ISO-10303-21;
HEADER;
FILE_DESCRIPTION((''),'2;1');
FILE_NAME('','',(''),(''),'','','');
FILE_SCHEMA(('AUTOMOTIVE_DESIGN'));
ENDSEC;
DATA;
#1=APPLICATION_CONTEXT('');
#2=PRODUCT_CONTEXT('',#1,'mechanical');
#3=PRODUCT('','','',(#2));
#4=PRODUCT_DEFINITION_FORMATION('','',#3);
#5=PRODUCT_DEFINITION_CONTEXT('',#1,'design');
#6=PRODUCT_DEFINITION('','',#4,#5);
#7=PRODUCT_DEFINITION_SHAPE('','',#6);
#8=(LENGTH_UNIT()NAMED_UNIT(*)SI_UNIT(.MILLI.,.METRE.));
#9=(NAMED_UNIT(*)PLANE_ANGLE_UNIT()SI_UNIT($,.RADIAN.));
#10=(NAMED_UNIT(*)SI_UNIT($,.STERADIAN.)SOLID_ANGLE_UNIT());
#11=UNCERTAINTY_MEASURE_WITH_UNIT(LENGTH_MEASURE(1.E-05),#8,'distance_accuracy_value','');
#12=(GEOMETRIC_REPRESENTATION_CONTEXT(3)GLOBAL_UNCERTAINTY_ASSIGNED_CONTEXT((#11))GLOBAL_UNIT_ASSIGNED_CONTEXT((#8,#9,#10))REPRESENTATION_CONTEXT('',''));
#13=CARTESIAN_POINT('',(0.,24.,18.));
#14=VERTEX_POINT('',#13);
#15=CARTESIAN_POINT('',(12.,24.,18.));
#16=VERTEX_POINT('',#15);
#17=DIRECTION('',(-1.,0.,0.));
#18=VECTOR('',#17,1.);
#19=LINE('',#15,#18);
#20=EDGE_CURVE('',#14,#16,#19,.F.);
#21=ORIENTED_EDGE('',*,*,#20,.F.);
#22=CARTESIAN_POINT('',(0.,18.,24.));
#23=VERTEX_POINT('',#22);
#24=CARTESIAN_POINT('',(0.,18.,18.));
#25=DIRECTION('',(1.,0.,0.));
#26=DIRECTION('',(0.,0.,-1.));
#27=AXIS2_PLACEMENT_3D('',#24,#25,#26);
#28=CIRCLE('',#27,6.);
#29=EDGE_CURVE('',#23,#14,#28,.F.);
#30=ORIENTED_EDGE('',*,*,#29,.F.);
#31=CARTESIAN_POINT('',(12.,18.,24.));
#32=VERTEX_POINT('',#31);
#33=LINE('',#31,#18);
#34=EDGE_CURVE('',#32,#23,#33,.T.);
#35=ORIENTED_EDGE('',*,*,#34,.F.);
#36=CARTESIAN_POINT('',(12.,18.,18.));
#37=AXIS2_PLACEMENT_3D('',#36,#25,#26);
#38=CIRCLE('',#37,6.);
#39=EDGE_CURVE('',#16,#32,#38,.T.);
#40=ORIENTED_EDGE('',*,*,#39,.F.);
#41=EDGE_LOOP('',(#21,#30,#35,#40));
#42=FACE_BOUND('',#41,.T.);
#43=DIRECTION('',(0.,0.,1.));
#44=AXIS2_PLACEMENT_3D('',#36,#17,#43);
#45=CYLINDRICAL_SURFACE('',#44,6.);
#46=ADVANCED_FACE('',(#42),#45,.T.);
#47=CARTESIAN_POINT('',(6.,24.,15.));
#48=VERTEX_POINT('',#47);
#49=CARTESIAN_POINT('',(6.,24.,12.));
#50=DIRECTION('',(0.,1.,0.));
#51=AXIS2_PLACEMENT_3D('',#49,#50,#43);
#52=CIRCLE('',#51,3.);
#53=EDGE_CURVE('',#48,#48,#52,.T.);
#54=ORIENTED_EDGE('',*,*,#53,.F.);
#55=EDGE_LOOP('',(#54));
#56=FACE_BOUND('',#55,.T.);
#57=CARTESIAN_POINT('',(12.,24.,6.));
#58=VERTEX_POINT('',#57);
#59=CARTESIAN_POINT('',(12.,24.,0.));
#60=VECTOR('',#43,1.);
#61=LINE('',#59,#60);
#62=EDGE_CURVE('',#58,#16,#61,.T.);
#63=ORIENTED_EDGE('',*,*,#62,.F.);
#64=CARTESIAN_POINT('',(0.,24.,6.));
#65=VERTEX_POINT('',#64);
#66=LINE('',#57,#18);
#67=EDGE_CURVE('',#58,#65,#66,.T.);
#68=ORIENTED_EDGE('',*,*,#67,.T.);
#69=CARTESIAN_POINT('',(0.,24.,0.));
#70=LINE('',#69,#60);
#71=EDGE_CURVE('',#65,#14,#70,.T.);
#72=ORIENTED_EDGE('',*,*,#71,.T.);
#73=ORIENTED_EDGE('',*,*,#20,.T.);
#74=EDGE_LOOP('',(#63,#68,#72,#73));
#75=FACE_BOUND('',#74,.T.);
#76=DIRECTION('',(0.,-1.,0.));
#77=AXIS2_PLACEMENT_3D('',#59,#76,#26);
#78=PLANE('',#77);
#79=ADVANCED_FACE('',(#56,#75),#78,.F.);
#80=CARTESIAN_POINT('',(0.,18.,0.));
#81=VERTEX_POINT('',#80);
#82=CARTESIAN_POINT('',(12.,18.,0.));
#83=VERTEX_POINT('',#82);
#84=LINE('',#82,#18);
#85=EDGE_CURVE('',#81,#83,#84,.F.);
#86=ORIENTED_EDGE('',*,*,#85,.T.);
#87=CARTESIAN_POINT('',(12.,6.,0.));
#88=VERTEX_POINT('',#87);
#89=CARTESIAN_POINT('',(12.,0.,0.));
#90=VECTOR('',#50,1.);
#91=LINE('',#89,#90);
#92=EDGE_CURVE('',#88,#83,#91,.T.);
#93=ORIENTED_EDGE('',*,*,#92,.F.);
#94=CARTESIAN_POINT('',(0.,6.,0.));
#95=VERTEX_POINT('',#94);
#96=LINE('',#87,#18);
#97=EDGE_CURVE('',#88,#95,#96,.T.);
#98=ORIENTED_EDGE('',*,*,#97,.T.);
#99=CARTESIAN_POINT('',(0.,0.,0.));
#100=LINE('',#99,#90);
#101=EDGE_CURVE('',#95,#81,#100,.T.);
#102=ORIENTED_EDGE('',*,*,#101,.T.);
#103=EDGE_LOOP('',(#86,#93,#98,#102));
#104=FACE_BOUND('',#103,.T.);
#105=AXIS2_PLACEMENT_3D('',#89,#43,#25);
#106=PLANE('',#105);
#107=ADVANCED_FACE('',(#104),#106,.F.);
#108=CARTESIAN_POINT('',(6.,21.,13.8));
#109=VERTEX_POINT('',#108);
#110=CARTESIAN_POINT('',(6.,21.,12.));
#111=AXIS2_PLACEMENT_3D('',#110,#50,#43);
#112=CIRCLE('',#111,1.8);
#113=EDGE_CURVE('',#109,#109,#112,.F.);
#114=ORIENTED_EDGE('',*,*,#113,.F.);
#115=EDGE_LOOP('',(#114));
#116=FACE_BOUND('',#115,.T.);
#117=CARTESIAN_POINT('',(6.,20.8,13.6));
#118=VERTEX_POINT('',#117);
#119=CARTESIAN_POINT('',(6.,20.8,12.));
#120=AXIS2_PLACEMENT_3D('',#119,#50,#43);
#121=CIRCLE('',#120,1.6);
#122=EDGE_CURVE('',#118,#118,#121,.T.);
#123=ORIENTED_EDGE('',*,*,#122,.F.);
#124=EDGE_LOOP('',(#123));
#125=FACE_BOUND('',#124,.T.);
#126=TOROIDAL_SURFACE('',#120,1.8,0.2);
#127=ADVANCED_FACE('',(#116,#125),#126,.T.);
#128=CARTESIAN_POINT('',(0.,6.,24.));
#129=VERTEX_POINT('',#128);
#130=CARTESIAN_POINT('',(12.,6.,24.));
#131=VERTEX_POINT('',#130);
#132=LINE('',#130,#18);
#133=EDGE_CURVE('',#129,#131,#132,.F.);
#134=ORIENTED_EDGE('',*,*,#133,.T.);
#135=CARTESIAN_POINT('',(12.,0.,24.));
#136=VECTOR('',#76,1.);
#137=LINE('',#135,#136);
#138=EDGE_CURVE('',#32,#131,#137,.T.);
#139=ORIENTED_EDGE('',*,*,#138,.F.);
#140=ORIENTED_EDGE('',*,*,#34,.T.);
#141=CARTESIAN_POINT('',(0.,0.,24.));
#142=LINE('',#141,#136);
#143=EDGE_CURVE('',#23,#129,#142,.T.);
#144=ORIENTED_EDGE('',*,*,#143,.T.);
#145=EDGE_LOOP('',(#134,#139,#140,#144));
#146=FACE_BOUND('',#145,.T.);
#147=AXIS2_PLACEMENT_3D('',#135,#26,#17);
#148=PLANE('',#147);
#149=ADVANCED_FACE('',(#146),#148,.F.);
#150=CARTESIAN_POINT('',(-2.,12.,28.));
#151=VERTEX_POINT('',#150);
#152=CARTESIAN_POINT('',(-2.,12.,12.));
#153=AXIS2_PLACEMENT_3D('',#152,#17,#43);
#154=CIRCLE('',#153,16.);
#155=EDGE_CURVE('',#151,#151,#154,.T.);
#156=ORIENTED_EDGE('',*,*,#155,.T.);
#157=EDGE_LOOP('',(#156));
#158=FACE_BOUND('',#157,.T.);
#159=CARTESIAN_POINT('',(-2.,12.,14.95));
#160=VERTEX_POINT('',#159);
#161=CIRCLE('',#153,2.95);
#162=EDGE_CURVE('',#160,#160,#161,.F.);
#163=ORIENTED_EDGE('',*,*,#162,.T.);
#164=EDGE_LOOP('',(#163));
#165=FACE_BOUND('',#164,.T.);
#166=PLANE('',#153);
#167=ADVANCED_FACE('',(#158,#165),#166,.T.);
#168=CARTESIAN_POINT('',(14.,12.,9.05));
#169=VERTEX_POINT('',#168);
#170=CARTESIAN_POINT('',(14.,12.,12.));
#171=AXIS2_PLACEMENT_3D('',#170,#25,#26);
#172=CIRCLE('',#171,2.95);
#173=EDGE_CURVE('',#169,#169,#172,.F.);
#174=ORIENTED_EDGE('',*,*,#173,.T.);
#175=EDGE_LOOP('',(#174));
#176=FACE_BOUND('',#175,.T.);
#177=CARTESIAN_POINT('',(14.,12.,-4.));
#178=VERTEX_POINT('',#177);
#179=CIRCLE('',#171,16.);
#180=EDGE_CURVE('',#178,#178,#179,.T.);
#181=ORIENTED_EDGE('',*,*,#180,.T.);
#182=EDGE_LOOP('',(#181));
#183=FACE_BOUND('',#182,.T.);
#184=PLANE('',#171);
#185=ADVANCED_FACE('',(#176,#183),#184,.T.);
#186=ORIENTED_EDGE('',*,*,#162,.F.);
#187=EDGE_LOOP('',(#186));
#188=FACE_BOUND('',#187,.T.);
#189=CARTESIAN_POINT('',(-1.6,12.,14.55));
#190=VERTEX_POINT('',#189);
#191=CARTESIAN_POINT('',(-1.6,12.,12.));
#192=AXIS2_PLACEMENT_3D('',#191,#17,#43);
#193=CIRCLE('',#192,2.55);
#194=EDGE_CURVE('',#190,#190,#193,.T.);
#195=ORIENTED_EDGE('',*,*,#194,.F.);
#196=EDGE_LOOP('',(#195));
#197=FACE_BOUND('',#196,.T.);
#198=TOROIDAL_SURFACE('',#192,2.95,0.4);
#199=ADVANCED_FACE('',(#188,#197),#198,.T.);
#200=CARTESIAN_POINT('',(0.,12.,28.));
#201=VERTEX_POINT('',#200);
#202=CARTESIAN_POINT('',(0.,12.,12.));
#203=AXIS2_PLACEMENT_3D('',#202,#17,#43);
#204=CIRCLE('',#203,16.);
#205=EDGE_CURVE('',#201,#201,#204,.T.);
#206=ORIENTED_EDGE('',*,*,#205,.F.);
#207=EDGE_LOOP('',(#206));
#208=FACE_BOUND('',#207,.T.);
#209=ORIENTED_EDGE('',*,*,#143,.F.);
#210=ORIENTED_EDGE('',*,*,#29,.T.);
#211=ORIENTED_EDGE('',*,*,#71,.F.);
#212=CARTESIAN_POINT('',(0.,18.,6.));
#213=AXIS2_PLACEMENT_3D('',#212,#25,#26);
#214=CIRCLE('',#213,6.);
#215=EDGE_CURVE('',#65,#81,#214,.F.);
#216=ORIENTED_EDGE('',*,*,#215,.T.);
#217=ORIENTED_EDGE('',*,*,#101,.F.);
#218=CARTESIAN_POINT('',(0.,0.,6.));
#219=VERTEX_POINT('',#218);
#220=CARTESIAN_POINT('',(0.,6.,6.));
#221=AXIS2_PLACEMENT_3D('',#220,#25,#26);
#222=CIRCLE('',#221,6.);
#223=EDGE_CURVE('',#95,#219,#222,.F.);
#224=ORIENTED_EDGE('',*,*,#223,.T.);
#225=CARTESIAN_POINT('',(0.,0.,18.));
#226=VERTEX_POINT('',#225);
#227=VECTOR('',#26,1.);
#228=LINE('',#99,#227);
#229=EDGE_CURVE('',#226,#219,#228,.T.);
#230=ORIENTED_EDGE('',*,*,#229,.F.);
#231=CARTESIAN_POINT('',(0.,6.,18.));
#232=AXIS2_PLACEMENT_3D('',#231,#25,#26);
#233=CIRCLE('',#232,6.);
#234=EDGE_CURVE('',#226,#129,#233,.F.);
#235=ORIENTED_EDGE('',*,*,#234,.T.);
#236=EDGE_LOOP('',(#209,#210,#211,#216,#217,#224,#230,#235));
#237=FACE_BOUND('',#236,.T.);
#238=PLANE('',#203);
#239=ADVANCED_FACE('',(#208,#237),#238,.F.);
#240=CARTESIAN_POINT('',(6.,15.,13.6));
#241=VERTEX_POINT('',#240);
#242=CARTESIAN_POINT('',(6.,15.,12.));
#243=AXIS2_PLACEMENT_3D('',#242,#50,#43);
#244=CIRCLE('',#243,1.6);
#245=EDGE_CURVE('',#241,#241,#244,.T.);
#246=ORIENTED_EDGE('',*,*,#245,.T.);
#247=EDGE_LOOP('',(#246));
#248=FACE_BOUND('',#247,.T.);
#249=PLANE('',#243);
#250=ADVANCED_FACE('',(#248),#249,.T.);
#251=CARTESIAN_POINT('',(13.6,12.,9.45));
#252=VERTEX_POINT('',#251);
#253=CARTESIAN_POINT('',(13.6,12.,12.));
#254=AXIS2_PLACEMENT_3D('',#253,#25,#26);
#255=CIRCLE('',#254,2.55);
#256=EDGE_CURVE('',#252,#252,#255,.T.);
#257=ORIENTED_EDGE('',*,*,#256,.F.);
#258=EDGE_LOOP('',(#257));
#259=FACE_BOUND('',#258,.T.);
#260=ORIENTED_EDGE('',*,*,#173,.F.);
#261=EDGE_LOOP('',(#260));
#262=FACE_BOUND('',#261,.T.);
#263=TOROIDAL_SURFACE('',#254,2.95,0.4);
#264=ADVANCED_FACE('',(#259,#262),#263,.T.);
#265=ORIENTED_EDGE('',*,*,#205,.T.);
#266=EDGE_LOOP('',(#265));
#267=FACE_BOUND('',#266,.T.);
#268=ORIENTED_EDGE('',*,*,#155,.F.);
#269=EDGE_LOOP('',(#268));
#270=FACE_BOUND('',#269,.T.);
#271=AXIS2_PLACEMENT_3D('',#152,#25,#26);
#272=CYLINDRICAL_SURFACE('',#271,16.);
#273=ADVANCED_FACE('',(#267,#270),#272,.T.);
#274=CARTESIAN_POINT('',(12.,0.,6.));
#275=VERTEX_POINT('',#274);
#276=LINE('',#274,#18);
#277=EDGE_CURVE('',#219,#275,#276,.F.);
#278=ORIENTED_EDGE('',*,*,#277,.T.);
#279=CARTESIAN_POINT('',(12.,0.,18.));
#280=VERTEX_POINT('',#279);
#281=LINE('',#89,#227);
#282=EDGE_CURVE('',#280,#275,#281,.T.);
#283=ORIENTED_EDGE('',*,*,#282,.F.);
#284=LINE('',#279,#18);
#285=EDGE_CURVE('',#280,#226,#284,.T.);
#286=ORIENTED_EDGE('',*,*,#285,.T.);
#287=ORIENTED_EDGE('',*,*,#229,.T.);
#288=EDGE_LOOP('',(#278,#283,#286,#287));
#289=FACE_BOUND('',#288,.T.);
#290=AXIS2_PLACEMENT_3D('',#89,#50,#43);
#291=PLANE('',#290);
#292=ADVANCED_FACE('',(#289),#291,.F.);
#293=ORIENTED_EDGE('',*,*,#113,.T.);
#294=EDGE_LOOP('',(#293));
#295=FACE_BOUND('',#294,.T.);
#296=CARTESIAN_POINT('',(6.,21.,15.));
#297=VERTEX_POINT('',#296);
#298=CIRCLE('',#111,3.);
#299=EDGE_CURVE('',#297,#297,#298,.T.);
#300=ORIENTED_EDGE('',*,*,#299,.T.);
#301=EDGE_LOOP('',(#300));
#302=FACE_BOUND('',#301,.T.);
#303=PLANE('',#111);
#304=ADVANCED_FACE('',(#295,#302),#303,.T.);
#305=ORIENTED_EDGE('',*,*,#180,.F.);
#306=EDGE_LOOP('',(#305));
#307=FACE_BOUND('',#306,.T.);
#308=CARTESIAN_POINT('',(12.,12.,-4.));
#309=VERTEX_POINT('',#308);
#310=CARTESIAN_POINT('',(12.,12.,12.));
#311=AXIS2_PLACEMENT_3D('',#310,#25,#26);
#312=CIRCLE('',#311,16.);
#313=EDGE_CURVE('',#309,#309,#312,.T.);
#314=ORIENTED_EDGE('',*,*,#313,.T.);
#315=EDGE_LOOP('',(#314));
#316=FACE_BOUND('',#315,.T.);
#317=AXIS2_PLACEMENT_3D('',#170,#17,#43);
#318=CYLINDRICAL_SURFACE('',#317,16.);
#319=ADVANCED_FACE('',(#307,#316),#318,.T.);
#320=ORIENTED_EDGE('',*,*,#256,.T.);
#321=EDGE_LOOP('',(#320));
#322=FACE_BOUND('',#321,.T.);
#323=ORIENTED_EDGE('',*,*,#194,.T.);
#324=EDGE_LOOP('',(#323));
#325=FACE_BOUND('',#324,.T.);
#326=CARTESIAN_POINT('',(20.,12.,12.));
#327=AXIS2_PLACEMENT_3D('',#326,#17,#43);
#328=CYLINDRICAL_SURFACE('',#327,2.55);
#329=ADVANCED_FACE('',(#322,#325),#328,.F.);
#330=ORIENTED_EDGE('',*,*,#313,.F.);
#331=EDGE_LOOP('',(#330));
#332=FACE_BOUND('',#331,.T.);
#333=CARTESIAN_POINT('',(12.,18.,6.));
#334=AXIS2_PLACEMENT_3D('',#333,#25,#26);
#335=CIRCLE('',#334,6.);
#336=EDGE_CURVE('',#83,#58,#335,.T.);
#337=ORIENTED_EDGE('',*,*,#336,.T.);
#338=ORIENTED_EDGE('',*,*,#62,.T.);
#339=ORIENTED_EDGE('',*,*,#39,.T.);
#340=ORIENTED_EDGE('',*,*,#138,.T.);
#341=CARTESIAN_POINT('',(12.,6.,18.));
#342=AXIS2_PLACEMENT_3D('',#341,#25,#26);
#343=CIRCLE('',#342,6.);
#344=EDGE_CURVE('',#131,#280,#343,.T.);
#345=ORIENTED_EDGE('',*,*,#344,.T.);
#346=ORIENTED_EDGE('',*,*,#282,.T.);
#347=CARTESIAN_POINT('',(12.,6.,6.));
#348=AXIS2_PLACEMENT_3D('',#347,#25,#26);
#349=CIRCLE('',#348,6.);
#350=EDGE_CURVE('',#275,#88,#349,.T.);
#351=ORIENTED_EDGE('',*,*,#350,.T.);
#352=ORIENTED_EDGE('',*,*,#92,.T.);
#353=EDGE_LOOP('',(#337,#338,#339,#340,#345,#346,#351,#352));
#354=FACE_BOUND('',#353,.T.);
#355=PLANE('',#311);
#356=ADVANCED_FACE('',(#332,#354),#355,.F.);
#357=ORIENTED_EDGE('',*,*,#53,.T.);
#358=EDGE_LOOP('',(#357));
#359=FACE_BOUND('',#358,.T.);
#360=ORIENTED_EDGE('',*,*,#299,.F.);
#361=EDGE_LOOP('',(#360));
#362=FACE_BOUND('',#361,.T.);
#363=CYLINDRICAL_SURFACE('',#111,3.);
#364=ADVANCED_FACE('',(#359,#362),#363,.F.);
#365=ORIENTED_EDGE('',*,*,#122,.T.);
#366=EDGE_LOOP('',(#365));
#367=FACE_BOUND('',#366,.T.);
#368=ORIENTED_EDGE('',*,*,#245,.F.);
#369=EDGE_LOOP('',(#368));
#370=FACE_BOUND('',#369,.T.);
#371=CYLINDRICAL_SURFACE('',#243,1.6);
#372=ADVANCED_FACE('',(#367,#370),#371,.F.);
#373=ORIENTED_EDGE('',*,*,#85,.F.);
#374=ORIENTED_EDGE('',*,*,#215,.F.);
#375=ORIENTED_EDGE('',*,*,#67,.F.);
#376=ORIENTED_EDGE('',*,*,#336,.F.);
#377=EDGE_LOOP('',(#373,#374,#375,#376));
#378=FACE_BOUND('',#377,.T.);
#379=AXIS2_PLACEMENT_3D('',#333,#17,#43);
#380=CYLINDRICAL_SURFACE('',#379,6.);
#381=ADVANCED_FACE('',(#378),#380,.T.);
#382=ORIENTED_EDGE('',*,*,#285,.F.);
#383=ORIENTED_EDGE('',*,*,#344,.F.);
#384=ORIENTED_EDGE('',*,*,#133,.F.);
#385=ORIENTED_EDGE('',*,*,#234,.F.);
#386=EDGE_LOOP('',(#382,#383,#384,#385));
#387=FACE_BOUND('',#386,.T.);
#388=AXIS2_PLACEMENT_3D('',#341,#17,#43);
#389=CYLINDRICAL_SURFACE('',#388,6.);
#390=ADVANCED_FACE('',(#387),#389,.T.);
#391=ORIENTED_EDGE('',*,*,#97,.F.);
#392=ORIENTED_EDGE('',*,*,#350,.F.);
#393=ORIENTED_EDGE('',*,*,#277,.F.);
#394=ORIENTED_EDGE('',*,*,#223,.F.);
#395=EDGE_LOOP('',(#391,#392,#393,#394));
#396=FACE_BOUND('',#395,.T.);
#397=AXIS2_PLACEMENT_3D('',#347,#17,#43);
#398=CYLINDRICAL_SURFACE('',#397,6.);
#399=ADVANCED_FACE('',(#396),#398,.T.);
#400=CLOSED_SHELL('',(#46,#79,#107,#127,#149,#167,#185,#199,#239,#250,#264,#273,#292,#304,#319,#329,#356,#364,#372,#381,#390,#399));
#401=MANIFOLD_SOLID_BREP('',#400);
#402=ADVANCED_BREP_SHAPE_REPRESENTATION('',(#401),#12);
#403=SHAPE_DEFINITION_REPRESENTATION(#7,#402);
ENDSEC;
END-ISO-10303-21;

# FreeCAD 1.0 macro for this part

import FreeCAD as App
import Part
import Sketcher
Q = App.Units.Quantity


def edges_at(feature, points):
    """Names of the edges that pass closest to the given points."""
    edges = feature.Shape.Edges
    near = lambda p: min(range(len(edges)), key=lambda i: edges[i].distToShape(Part.Vertex(*p))[0])
    return sorted({f"Edge{near(p) + 1}" for p in points})


def add_polygon(sketch, points):
    """Adds a closed chain of lines whose ends are joined by coincident constraints."""
    first, n = sketch.GeometryCount, len(points)
    for a, b in zip(points, points[1:] + points[:1]):
        sketch.addGeometry(Part.LineSegment(App.Vector(*a, 0), App.Vector(*b, 0)), False)
    for i in range(n):
        sketch.addConstraint(Sketcher.Constraint("Coincident", first + i, 2, first + (i + 1) % n, 1))

doc = App.newDocument("Part")
body = doc.addObject("PartDesign::Body", "Body")

# Sketch on YZ plane
sketch1 = body.newObject("Sketcher::SketchObject", "Sketch")
sketch1.AttachmentSupport = (doc.getObject("YZ_Plane"), [""])
sketch1.MapMode = "FlatFace"
add_polygon(sketch1, [(24, 24), (0, 24), (0, 0), (24, 0)])  # lines 0-3
sketch1.addConstraint([
    Sketcher.Constraint("Horizontal", 0),
    Sketcher.Constraint("Vertical", 1),
    Sketcher.Constraint("Horizontal", 2),
    Sketcher.Constraint("Vertical", 3),
    Sketcher.Constraint("Coincident", 1, 2, -1, 1),
    Sketcher.Constraint("Equal", 2, 1),
    Sketcher.Constraint("DistanceX", 0, 2, 0, 1, Q("24 mm")),
])
pad1 = body.newObject("PartDesign::Pad", "Pad")
pad1.Profile = sketch1
pad1.Length = 12
doc.recompute()

fillet = body.newObject("PartDesign::Fillet", "Fillet")
fillet.Base = (pad1, edges_at(pad1, [
    (6, 0, 0),
    (6, 0, 24),
    (6, 24, 24),
    (6, 24, 0),
]))
fillet.Radius = 6

# Sketch on XZ plane
sketch2 = body.newObject("Sketcher::SketchObject", "Sketch001")
sketch2.AttachmentSupport = (doc.getObject("XZ_Plane"), [""])
sketch2.MapMode = "FlatFace"
sketch2.AttachmentOffset = App.Placement(App.Vector(0, 0, -24), App.Rotation())
sketch2.addGeometry(Part.Circle(App.Vector(6, 12, 0), App.Vector(0, 0, 1), 1.6), False)
sketch2.addConstraint([
    Sketcher.Constraint("Diameter", 0, Q("3.2 mm")),
    Sketcher.Constraint("DistanceX", -1, 1, 0, 3, Q("6 mm")),
    Sketcher.Constraint("DistanceY", -1, 1, 0, 3, Q("12 mm")),
])
pocket1 = body.newObject("PartDesign::Pocket", "Pocket")
pocket1.Profile = sketch2
pocket1.Length = 9
pocket1.Reversed = True

# Sketch on XZ plane
sketch3 = body.newObject("Sketcher::SketchObject", "Sketch002")
sketch3.AttachmentSupport = (doc.getObject("XZ_Plane"), [""])
sketch3.MapMode = "FlatFace"
sketch3.AttachmentOffset = App.Placement(App.Vector(0, 0, -24), App.Rotation())
sketch3.addGeometry(Part.Circle(App.Vector(6, 12, 0), App.Vector(0, 0, 1), 3), False)
sketch3.addConstraint([
    Sketcher.Constraint("Diameter", 0, Q("6 mm")),
    Sketcher.Constraint("DistanceX", -1, 1, 0, 3, Q("6 mm")),
    Sketcher.Constraint("DistanceY", -1, 1, 0, 3, Q("12 mm")),
])
pocket2 = body.newObject("PartDesign::Pocket", "Pocket001")
pocket2.Profile = sketch3
pocket2.Length = 3
pocket2.Reversed = True

# Sketch on YZ plane
sketch4 = body.newObject("Sketcher::SketchObject", "Sketch003")
sketch4.AttachmentSupport = (doc.getObject("YZ_Plane"), [""])
sketch4.MapMode = "FlatFace"
sketch4.addGeometry(Part.Circle(App.Vector(12, 12, 0), App.Vector(0, 0, 1), 1.6), False)
sketch4.addConstraint([
    Sketcher.Constraint("Diameter", 0, Q("3.1 mm")),
    Sketcher.Constraint("DistanceX", -1, 1, 0, 3, Q("12 mm")),
    Sketcher.Constraint("DistanceY", -1, 1, 0, 3, Q("12 mm")),
])
pocket3 = body.newObject("PartDesign::Pocket", "Pocket002")
pocket3.Profile = sketch4
pocket3.Length = 23
pocket3.Reversed = True

# Sketch on YZ plane
sketch5 = body.newObject("Sketcher::SketchObject", "Sketch004")
sketch5.AttachmentSupport = (doc.getObject("YZ_Plane"), [""])
sketch5.MapMode = "FlatFace"
sketch5.AttachmentOffset = App.Placement(App.Vector(0, 0, 12), App.Rotation())
sketch5.addGeometry(Part.Circle(App.Vector(12, 12, 0), App.Vector(0, 0, 1), 16), False)
sketch5.addConstraint([
    Sketcher.Constraint("Diameter", 0, Q("32 mm")),
    Sketcher.Constraint("DistanceX", -1, 1, 0, 3, Q("12 mm")),
    Sketcher.Constraint("DistanceY", -1, 1, 0, 3, Q("12 mm")),
])
pad2 = body.newObject("PartDesign::Pad", "Pad001")
pad2.Profile = sketch5
pad2.Length = 2

# Sketch on YZ plane
sketch6 = body.newObject("Sketcher::SketchObject", "Sketch005")
sketch6.AttachmentSupport = (doc.getObject("YZ_Plane"), [""])
sketch6.MapMode = "FlatFace"
sketch6.AttachmentOffset = App.Placement(App.Vector(0, 0, -2), App.Rotation())
sketch6.addGeometry(Part.Circle(App.Vector(12, 12, 0), App.Vector(0, 0, 1), 16), False)
sketch6.addConstraint([
    Sketcher.Constraint("Diameter", 0, Q("32 mm")),
    Sketcher.Constraint("DistanceX", -1, 1, 0, 3, Q("12 mm")),
    Sketcher.Constraint("DistanceY", -1, 1, 0, 3, Q("12 mm")),
])
pad3 = body.newObject("PartDesign::Pad", "Pad002")
pad3.Profile = sketch6
pad3.Length = 2

# Sketch on YZ plane
sketch7 = body.newObject("Sketcher::SketchObject", "Sketch006")
sketch7.AttachmentSupport = (doc.getObject("YZ_Plane"), [""])
sketch7.MapMode = "FlatFace"
sketch7.AttachmentOffset = App.Placement(App.Vector(0, 0, -2), App.Rotation())
sketch7.addGeometry(Part.Circle(App.Vector(12, 12, 0), App.Vector(0, 0, 1), 2.5), False)
sketch7.addConstraint([
    Sketcher.Constraint("Diameter", 0, Q("5.1 mm")),
    Sketcher.Constraint("DistanceX", -1, 1, 0, 3, Q("12 mm")),
    Sketcher.Constraint("DistanceY", -1, 1, 0, 3, Q("12 mm")),
])
pocket4 = body.newObject("PartDesign::Pocket", "Pocket003")
pocket4.Profile = sketch7
pocket4.Length = 22
pocket4.Reversed = True
doc.recompute()

fillet2 = body.newObject("PartDesign::Fillet", "Fillet001")
fillet2.Base = (pocket4, edges_at(pocket4, [(6, 21, 10.4)]))
fillet2.Radius = 0.2
doc.recompute()

fillet3 = body.newObject("PartDesign::Fillet", "Fillet002")
fillet3.Base = (fillet2, edges_at(fillet2, [(14, 12, 9.45), (-2, 12, 9.45)]))
fillet3.Radius = 0.4

doc.recompute()
